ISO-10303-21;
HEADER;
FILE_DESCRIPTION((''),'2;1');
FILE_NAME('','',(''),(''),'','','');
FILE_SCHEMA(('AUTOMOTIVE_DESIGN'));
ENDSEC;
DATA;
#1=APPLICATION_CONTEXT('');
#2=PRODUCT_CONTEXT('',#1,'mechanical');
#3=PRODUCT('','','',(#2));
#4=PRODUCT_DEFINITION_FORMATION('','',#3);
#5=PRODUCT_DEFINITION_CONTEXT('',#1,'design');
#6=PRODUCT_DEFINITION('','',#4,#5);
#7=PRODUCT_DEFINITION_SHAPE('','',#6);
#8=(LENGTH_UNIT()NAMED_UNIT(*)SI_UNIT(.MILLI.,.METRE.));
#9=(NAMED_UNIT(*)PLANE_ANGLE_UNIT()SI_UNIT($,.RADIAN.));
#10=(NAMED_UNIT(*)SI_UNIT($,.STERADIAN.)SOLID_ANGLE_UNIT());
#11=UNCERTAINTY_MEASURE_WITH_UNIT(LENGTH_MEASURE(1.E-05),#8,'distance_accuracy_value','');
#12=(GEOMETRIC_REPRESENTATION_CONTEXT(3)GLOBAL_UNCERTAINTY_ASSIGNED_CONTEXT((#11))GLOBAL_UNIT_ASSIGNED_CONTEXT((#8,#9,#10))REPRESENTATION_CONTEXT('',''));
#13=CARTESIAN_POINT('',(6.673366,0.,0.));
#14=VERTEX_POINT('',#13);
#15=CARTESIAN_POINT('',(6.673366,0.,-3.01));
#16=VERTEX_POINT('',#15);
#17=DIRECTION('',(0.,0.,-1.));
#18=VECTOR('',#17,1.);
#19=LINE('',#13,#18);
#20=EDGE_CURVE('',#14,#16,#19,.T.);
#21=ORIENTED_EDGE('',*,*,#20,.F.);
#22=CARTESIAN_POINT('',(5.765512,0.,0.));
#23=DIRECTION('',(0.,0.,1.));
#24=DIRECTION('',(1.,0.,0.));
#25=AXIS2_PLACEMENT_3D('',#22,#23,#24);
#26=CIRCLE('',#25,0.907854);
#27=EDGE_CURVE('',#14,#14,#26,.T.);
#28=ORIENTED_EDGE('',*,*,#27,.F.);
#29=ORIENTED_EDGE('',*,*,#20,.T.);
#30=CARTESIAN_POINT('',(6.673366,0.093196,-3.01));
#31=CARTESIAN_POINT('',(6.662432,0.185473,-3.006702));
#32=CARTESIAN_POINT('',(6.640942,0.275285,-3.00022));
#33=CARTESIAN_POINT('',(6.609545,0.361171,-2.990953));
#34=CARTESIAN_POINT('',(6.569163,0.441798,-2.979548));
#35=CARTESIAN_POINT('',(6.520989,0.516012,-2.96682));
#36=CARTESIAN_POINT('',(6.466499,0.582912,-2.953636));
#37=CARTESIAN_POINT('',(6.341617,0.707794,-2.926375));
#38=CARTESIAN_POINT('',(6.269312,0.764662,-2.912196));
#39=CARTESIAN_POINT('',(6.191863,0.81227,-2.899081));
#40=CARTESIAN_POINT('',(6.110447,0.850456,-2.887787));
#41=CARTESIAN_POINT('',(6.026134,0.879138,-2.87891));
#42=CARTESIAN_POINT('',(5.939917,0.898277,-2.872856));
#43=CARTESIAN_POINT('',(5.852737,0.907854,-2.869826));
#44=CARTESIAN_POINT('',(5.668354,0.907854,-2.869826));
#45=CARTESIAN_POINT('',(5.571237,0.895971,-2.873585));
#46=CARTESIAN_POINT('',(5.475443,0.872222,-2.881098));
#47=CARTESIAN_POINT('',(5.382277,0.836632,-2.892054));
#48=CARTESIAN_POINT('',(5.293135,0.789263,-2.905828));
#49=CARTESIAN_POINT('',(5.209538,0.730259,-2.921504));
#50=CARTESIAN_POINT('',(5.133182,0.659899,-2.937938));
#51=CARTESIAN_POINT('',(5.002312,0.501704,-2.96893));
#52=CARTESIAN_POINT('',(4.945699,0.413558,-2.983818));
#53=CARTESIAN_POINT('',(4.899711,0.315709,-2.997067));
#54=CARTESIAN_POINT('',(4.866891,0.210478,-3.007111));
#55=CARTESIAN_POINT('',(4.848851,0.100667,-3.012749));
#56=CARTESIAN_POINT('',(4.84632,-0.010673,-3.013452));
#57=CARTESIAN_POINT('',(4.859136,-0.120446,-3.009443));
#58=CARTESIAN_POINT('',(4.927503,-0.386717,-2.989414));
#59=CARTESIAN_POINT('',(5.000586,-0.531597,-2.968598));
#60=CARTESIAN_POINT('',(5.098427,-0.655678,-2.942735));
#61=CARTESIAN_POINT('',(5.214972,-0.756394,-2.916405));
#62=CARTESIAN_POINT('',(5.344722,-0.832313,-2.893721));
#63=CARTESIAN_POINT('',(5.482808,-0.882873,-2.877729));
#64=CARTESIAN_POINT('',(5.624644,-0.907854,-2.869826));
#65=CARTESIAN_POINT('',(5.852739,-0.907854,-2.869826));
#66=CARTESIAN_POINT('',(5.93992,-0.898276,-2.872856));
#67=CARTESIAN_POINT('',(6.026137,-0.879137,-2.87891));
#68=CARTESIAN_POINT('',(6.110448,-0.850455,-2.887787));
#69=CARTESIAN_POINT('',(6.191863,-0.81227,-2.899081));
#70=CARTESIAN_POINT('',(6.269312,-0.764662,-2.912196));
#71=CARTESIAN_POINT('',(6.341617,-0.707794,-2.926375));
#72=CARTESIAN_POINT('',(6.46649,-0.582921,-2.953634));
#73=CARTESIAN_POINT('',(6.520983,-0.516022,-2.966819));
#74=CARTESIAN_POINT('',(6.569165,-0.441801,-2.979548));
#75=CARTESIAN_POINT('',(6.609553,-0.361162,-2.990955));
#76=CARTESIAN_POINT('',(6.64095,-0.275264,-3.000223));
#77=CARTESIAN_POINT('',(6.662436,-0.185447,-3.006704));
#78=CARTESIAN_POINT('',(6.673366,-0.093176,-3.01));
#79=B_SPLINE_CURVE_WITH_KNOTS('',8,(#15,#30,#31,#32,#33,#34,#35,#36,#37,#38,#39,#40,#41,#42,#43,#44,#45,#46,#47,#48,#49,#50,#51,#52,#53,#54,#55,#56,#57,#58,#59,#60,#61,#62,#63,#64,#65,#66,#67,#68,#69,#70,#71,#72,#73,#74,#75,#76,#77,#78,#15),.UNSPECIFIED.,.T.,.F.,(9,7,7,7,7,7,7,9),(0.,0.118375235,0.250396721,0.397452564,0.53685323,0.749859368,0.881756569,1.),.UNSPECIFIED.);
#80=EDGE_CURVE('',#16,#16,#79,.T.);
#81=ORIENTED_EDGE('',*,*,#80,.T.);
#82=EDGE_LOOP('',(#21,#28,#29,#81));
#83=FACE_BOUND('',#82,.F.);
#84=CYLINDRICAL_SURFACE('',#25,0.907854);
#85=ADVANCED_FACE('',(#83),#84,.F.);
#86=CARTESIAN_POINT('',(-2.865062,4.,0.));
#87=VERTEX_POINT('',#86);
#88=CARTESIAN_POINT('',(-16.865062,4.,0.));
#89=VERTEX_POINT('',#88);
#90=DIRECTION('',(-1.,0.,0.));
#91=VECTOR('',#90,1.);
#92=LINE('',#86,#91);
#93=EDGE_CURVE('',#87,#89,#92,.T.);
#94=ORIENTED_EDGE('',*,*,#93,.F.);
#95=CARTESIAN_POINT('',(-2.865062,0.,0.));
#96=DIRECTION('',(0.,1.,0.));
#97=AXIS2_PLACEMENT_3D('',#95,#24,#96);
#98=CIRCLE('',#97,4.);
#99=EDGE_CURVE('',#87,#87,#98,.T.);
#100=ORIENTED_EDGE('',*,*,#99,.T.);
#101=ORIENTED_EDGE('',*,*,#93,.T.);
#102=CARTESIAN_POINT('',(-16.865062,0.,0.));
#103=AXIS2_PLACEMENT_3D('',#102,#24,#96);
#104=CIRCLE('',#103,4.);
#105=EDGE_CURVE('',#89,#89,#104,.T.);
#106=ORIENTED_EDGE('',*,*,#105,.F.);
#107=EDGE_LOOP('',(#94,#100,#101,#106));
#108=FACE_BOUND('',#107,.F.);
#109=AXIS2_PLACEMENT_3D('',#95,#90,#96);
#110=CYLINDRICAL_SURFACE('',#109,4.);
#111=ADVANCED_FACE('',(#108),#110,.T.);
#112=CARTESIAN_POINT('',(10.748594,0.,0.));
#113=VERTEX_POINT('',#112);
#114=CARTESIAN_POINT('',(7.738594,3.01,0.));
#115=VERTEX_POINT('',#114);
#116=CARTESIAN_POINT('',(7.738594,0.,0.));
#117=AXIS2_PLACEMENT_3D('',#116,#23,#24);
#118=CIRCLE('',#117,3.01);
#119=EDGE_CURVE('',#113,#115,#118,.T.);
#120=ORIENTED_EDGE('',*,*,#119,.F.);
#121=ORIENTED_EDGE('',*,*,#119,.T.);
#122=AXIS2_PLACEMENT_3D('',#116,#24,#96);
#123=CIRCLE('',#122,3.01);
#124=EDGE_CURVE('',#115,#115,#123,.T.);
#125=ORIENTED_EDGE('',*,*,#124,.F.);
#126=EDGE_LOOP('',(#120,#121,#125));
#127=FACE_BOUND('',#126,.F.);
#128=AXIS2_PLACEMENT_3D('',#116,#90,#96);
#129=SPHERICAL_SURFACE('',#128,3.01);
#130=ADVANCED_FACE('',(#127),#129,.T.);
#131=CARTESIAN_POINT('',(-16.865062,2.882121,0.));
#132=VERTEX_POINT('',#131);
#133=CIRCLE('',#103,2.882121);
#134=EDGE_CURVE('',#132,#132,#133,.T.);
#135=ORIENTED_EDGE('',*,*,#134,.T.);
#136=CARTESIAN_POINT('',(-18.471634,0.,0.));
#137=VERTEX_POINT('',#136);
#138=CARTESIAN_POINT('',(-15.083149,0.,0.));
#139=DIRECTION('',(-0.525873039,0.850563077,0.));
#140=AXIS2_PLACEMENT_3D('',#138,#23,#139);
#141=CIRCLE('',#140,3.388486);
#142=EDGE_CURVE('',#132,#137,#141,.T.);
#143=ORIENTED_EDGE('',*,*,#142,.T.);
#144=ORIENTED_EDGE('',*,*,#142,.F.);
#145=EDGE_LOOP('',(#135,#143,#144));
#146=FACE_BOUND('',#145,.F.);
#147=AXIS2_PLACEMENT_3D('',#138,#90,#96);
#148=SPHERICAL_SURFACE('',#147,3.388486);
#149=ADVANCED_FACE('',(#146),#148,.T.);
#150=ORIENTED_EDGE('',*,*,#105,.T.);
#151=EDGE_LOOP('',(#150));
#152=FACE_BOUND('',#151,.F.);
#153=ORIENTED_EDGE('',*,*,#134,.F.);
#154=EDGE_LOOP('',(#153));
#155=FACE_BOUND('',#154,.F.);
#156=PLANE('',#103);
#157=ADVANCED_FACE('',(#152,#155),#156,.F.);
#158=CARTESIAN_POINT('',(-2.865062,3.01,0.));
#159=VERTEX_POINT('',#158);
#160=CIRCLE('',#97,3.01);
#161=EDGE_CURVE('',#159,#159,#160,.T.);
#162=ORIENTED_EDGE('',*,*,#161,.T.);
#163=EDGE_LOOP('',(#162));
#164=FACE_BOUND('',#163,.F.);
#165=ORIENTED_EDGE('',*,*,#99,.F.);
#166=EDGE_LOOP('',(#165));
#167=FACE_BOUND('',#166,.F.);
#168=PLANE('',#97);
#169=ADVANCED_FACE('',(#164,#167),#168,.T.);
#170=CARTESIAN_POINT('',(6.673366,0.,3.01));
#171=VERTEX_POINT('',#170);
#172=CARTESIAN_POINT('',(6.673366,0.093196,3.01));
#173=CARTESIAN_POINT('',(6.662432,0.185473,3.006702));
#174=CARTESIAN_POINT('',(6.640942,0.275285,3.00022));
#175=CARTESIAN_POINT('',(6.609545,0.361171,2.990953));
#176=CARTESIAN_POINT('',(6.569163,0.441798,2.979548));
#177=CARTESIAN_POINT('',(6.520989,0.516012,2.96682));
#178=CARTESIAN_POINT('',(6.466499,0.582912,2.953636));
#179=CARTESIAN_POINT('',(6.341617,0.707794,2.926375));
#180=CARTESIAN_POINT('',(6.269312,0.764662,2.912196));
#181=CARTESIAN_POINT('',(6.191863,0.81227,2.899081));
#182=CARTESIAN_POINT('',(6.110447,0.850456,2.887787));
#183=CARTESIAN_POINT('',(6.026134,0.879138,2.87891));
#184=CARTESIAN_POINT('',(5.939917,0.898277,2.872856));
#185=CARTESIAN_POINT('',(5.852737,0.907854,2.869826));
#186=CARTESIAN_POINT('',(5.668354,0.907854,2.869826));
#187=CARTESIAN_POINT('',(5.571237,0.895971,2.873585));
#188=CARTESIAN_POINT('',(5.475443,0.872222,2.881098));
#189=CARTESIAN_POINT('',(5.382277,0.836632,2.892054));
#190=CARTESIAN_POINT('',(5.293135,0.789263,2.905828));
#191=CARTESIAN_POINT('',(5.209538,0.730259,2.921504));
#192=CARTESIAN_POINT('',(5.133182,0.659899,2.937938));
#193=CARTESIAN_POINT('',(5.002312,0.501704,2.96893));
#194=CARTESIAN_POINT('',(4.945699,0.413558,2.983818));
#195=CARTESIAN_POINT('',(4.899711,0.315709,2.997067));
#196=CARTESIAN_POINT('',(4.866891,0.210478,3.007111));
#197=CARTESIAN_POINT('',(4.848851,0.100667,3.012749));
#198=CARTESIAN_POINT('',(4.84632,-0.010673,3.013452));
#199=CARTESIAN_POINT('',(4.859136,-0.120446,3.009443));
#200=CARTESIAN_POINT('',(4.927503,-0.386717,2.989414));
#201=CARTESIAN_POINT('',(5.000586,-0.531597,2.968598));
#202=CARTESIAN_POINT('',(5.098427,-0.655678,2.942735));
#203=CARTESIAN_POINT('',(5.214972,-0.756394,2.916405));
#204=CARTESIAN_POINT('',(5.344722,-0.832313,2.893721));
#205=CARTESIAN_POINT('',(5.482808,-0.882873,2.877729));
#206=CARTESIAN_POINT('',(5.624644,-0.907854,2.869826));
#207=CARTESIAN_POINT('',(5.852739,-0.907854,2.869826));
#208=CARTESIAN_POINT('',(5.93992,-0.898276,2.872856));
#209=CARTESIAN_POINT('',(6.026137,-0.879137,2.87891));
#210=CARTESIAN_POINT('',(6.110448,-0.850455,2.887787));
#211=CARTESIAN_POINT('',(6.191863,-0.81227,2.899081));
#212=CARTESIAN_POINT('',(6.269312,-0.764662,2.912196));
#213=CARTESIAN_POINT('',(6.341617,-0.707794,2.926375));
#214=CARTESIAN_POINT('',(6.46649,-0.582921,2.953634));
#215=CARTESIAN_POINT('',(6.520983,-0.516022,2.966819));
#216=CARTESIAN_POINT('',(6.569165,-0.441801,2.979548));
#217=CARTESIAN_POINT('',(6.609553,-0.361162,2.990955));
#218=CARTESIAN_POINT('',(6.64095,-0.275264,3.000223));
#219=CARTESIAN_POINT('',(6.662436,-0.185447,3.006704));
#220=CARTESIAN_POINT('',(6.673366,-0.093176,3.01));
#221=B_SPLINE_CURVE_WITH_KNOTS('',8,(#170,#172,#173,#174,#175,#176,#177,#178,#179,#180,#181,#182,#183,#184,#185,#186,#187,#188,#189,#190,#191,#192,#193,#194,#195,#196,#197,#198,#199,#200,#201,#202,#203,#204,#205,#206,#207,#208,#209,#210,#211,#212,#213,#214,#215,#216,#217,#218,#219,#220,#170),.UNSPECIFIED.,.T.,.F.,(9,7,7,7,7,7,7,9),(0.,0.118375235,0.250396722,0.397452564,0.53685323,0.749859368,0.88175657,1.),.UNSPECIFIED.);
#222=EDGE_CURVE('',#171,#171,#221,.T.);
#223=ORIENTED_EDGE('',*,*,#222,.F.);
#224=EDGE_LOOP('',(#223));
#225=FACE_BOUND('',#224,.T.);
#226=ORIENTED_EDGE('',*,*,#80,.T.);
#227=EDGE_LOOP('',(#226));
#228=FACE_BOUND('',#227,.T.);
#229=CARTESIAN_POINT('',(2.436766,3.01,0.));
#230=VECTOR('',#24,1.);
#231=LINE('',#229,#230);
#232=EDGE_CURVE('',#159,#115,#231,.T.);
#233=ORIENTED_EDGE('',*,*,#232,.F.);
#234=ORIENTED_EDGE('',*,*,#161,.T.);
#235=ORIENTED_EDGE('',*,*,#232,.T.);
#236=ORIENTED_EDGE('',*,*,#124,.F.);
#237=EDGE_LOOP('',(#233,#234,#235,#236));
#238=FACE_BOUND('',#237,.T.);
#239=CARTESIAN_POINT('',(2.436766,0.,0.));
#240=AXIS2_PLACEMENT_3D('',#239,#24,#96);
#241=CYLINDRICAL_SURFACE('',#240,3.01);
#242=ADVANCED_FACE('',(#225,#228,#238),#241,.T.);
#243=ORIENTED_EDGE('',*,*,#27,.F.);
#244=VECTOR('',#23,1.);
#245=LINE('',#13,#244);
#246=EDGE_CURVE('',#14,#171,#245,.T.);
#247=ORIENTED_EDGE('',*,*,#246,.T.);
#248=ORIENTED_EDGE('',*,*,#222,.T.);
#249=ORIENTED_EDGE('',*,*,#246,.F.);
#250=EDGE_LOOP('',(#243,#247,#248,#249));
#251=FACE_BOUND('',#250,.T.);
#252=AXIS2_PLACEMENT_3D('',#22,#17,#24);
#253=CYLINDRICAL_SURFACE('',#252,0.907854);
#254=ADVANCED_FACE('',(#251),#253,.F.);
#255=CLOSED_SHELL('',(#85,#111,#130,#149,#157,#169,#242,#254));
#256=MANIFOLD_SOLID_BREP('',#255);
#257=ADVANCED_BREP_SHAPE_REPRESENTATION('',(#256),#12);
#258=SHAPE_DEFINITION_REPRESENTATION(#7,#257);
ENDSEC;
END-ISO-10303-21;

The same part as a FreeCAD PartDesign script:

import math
import FreeCAD as App
import Part
import Sketcher
from FreeCAD import Vector
Q = App.Units.Quantity

doc = App.newDocument("Part")
body = doc.addObject("PartDesign::Body", "Body")

# Sketch on XY plane
sketch1 = body.newObject("Sketcher::SketchObject", "Sketch")
sketch1.AttachmentSupport = (doc.getObject("XY_Plane"), [""])
sketch1.MapMode = "FlatFace"
sketch1.addGeometry([
    Part.LineSegment(Vector(-2.9, 4, 0), Vector(-16.9, 4, 0)),  # 0
    Part.LineSegment(Vector(-16.9, 4, 0), Vector(-16.9, 2.9, 0)),  # 1
    Part.ArcOfCircle(Part.Circle(Vector(-15.1, 0, 0), Vector(0, 0, 1), 3.4), math.radians(122), math.radians(180)),  # 2
    Part.LineSegment(Vector(-18.5, 0, 0), Vector(10.7, 0, 0)),  # 3
    Part.ArcOfCircle(Part.Circle(Vector(7.7, 0, 0), Vector(0, 0, 1), 3), math.radians(0), math.radians(90)),  # 4
    Part.LineSegment(Vector(7.7, 3, 0), Vector(-2.9, 3, 0)),  # 5
    Part.LineSegment(Vector(-2.9, 3, 0), Vector(-2.9, 4, 0)),  # 6
], False)
sketch1.addConstraint([
    Sketcher.Constraint("Coincident", 0, 2, 1, 1),
    Sketcher.Constraint("Coincident", 1, 2, 2, 1),
    Sketcher.Constraint("Coincident", 2, 2, 3, 1),
    Sketcher.Constraint("Coincident", 3, 2, 4, 1),
    Sketcher.Constraint("Tangent", 4, 2, 5, 1),
    Sketcher.Constraint("Coincident", 5, 2, 6, 1),
    Sketcher.Constraint("Coincident", 6, 2, 0, 1),
    Sketcher.Constraint("Horizontal", 0),
    Sketcher.Constraint("Vertical", 1),
    Sketcher.Constraint("Horizontal", 3),
    Sketcher.Constraint("Horizontal", 5),
    Sketcher.Constraint("Vertical", 6),
    Sketcher.Constraint("PointOnObject", 2, 3, -1),
    Sketcher.Constraint("PointOnObject", 4, 3, -1),
    Sketcher.Constraint("PointOnObject", 2, 2, -1),
    Sketcher.Constraint("DistanceX", 0, 2, 0, 1, Q("14 mm")),
    Sketcher.Constraint("Radius", 4, Q("3.01 mm")),
    Sketcher.Constraint("DistanceY", -1, 1, 0, 2, Q("4 mm")),
    Sketcher.Constraint("Radius", 2, Q("3.388486 mm")),
    Sketcher.Constraint("DistanceX", 3, 1, 3, 2, Q("29.220229 mm")),
    Sketcher.Constraint("DistanceY", 1, 2, 1, 1, Q("1.117879 mm")),
    Sketcher.Constraint("DistanceX", 2, 3, -1, 1, Q("15.083149 mm")),
])
revolution = body.newObject("PartDesign::Revolution", "Revolution")
revolution.Profile = sketch1
revolution.ReferenceAxis = (sketch1, ["H_Axis"])
revolution.Angle = 360

# Sketch on XY plane
sketch2 = body.newObject("Sketcher::SketchObject", "Sketch001")
sketch2.AttachmentSupport = (doc.getObject("XY_Plane"), [""])
sketch2.MapMode = "FlatFace"
sketch2.addGeometry(Part.Circle(Vector(5.8, 0, 0), Vector(0, 0, 1), 0.9), False)
sketch2.addConstraint([
    Sketcher.Constraint("PointOnObject", 0, 3, -1),
    Sketcher.Constraint("Diameter", 0, Q("1.815708 mm")),
    Sketcher.Constraint("DistanceX", -1, 1, 0, 3, Q("5.765512 mm")),
])
pocket1 = body.newObject("PartDesign::Pocket", "Pocket")
pocket1.Profile = sketch2
pocket1.Type = "ThroughAll"
pocket1.Midplane = True

doc.recompute()
